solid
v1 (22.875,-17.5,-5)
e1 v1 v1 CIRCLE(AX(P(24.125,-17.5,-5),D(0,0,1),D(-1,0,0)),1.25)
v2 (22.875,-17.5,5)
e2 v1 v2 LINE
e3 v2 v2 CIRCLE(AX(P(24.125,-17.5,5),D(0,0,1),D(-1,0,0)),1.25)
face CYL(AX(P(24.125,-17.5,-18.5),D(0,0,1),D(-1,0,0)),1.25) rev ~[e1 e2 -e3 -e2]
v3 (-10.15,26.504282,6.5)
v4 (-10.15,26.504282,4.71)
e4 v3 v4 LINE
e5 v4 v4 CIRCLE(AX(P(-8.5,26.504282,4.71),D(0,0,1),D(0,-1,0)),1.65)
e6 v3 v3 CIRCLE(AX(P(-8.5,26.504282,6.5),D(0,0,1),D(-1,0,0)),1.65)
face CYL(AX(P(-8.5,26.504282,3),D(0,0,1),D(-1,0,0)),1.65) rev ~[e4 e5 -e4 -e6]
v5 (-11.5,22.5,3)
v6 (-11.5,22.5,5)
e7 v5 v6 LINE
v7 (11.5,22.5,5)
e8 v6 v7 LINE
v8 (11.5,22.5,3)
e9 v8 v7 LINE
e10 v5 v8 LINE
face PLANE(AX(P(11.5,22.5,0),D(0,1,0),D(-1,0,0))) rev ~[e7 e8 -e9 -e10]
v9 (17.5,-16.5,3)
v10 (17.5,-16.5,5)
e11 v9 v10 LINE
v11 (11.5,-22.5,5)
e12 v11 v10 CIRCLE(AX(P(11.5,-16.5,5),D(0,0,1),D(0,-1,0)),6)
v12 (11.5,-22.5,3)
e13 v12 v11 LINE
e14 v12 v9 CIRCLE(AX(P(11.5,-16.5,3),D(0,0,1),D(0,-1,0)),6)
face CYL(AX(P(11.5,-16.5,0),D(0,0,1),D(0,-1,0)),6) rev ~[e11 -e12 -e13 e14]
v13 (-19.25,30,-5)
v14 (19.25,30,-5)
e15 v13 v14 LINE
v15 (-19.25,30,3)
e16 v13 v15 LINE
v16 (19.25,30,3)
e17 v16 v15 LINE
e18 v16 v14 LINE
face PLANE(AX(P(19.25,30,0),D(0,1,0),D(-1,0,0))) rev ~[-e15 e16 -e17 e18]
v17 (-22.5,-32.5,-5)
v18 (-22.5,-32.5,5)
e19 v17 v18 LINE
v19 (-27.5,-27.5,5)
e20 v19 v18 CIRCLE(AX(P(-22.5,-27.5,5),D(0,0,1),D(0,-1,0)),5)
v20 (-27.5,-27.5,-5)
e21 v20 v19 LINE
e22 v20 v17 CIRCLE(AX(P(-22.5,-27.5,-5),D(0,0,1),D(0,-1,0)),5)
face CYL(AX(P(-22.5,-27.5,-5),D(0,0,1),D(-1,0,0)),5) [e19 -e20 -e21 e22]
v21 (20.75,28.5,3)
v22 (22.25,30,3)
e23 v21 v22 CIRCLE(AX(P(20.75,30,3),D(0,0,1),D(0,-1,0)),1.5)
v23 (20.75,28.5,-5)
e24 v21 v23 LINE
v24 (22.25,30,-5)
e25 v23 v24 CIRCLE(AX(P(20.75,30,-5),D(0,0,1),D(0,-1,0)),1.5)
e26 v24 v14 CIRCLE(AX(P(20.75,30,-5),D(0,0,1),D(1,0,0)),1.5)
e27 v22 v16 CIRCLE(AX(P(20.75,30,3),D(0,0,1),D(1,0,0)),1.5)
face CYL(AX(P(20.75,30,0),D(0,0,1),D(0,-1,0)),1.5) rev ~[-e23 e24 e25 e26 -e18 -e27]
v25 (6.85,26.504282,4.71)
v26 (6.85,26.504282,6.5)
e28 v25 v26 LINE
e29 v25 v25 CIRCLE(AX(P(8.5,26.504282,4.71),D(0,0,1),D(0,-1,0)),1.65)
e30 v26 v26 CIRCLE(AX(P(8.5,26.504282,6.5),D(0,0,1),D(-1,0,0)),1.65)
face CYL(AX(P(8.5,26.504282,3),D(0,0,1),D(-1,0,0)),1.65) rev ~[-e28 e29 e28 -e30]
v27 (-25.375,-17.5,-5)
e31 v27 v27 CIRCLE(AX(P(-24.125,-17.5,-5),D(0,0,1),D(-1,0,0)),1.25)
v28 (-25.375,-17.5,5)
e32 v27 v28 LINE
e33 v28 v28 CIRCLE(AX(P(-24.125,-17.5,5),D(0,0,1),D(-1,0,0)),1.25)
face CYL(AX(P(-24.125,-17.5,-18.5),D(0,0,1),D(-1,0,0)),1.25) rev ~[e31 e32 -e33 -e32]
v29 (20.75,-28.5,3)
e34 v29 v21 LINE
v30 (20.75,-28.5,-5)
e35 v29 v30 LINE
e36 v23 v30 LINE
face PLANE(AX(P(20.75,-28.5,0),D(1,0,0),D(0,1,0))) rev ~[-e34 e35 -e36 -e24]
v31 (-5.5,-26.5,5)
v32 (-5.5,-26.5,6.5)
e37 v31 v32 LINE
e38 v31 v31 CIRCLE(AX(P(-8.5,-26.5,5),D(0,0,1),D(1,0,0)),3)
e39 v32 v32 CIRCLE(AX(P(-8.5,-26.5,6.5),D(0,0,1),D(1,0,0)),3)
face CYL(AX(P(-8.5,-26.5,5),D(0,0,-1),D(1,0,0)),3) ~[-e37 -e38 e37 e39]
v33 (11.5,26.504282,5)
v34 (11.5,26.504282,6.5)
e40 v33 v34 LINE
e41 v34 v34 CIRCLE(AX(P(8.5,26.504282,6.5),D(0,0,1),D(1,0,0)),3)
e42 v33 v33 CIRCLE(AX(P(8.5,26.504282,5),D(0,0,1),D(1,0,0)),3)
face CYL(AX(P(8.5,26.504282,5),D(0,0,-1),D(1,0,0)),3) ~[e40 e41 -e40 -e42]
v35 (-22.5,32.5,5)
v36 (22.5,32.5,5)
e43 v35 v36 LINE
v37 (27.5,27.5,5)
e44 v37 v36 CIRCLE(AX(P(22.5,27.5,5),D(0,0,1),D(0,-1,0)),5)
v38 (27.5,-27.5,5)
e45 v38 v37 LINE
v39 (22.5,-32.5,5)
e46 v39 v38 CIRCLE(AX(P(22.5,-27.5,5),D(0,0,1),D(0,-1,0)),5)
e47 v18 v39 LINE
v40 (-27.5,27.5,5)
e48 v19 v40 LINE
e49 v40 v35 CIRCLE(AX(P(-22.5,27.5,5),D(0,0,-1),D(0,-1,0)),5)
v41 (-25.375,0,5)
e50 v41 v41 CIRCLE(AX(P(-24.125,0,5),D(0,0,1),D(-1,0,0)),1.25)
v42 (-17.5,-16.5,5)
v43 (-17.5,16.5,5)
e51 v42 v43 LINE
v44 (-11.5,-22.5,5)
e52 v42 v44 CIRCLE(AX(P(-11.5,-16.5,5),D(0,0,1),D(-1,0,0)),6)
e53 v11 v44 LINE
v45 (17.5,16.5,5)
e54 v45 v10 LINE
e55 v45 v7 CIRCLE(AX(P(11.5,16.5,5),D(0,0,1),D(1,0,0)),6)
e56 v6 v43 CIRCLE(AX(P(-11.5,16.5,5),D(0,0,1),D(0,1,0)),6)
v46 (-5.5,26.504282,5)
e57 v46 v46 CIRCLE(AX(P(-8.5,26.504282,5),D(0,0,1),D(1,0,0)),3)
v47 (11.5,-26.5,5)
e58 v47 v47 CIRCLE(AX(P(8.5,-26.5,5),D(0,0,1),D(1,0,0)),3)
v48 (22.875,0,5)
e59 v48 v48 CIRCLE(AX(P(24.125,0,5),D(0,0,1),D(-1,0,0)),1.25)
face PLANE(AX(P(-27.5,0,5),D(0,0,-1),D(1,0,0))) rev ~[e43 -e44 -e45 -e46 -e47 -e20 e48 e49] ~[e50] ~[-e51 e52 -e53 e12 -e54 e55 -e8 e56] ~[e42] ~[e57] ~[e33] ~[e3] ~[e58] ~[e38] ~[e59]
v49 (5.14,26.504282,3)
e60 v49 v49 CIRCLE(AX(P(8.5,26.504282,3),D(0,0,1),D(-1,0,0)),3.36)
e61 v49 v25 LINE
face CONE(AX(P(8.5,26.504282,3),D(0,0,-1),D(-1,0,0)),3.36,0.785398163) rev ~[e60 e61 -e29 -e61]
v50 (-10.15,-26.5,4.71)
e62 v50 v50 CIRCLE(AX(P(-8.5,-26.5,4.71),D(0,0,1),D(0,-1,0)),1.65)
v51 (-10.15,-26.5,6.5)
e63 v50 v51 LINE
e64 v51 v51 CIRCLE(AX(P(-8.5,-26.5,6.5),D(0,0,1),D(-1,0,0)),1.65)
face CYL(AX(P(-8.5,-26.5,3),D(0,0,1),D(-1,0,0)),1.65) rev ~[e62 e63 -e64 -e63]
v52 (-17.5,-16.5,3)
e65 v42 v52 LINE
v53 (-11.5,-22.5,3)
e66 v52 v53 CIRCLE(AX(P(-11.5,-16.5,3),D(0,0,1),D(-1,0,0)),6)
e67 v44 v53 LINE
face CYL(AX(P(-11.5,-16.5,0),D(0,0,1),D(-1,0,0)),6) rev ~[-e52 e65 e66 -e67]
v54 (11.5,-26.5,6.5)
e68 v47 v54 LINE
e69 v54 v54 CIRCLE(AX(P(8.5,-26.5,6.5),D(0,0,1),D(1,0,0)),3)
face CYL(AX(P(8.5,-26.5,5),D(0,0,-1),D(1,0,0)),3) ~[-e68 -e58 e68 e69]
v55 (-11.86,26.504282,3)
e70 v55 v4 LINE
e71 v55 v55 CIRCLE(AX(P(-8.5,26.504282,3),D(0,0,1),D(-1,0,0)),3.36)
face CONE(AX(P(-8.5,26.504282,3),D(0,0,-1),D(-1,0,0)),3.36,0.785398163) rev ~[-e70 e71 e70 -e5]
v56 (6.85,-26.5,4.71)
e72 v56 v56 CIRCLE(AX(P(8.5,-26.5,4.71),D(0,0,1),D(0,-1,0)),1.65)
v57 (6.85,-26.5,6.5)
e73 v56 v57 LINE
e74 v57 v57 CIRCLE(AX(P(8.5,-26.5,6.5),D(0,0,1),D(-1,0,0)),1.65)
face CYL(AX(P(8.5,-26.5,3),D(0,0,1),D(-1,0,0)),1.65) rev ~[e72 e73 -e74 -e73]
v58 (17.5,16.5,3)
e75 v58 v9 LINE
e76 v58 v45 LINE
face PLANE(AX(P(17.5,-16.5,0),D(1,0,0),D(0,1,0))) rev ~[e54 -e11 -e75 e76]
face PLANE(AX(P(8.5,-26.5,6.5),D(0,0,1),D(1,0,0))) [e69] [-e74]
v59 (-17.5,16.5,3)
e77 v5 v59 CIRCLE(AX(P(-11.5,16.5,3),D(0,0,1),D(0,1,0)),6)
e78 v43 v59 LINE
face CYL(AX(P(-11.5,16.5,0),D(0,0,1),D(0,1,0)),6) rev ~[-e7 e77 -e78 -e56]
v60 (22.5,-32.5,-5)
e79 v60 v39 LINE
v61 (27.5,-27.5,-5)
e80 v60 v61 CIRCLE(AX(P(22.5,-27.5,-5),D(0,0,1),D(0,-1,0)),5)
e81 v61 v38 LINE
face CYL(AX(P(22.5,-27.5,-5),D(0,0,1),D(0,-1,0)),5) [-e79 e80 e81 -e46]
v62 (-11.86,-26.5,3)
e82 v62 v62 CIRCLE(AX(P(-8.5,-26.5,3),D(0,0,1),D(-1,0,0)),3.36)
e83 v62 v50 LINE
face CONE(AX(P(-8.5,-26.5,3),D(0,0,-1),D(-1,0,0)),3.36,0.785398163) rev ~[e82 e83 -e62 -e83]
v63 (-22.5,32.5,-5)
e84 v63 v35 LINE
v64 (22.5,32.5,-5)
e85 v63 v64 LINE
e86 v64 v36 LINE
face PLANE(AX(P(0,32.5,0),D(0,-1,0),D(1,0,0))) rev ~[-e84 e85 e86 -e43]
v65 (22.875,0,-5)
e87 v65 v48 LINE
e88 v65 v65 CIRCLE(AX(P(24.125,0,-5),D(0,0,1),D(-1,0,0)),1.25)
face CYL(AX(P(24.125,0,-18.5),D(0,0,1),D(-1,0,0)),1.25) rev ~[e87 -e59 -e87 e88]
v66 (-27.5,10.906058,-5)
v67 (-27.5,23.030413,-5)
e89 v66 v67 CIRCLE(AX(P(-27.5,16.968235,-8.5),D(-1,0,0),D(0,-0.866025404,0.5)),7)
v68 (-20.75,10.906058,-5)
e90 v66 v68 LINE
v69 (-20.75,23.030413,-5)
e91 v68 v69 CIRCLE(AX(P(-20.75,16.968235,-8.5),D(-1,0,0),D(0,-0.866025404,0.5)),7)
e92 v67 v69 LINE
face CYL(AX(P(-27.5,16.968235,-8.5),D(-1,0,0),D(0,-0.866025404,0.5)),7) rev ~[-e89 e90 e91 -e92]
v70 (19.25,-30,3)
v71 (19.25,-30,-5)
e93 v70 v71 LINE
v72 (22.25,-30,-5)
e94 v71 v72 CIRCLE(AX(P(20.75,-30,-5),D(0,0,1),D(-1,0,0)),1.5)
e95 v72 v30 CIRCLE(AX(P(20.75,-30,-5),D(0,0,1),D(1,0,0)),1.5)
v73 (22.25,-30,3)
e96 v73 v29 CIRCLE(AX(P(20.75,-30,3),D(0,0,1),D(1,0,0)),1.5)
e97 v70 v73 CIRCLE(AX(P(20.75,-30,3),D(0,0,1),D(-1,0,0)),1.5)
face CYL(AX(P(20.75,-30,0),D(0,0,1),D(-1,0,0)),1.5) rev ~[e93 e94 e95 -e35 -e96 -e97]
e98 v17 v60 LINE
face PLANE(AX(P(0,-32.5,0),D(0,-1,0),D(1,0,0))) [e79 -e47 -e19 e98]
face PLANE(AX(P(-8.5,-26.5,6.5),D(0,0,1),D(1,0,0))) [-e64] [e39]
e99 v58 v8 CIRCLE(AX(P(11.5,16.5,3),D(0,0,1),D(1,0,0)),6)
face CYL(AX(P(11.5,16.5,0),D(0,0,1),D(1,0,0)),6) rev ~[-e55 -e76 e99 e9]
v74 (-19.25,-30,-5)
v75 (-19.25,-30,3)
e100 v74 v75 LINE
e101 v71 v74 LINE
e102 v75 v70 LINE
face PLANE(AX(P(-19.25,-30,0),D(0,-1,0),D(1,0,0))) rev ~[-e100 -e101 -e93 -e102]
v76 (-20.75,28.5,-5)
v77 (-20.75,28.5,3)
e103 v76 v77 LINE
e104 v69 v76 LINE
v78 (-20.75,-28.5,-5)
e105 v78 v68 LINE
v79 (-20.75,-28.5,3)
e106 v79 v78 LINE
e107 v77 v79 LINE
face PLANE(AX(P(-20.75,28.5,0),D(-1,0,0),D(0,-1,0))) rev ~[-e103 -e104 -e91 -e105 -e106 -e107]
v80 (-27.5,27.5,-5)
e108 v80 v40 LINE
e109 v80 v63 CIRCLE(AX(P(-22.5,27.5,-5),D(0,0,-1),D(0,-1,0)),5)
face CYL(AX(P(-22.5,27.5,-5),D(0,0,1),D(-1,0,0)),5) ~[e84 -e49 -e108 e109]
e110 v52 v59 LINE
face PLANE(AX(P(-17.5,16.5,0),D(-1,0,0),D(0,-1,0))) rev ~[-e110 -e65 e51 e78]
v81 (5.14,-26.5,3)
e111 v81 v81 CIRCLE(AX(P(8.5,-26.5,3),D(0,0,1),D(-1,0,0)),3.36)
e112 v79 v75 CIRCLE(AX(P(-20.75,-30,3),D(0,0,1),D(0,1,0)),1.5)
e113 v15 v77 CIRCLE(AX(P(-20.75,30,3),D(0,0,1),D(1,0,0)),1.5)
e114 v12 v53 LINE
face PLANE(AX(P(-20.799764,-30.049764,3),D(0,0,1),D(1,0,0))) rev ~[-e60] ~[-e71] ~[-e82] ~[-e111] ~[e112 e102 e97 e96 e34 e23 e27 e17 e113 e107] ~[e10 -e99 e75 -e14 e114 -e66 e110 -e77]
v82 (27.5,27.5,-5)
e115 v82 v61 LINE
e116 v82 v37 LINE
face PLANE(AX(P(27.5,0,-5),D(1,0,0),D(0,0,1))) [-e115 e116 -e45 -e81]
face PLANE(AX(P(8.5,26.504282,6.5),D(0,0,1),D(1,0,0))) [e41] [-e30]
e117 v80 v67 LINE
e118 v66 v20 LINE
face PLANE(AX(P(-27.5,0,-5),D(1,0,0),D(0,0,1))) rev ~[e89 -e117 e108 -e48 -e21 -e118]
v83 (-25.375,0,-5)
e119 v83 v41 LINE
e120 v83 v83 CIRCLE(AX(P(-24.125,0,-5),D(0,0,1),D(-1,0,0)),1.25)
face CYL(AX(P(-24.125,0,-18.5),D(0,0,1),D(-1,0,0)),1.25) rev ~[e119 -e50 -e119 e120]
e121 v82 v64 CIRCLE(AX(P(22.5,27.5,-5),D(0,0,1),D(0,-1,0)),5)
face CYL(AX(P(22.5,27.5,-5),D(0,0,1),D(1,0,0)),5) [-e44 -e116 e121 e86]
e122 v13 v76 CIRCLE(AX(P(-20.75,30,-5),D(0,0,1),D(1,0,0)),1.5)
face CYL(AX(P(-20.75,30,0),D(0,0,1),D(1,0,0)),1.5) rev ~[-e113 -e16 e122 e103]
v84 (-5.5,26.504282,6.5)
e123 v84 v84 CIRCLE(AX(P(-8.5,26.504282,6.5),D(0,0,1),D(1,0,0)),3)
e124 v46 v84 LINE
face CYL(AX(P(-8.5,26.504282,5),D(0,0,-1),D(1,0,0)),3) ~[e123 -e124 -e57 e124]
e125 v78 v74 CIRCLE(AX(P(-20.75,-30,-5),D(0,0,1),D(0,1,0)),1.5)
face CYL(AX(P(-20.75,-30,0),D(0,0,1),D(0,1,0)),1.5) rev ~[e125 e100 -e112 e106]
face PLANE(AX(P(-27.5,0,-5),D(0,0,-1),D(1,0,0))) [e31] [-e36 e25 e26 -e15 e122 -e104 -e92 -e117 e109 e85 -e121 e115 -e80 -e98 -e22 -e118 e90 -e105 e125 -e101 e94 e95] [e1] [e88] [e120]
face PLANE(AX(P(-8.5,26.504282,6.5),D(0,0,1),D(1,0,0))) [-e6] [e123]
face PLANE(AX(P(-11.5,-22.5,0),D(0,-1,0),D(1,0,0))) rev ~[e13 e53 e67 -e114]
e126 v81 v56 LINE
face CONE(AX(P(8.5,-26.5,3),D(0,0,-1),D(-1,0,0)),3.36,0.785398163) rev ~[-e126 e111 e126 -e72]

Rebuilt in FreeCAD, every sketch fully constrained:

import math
import FreeCAD as App
import Part
import Sketcher
Q = App.Units.Quantity


def edges_at(feature, points):
    """Names of the edges that pass closest to the given points."""
    edges = feature.Shape.Edges
    near = lambda p: min(range(len(edges)), key=lambda i: edges[i].distToShape(Part.Vertex(*p))[0])
    return sorted({f"Edge{near(p) + 1}" for p in points})


def add_polygon(sketch, points):
    """Adds a closed chain of lines whose ends are joined by coincident constraints."""
    first, n = sketch.GeometryCount, len(points)
    for a, b in zip(points, points[1:] + points[:1]):
        sketch.addGeometry(Part.LineSegment(App.Vector(*a, 0), App.Vector(*b, 0)), False)
    for i in range(n):
        sketch.addConstraint(Sketcher.Constraint("Coincident", first + i, 2, first + (i + 1) % n, 1))

doc = App.newDocument("Part")
body = doc.addObject("PartDesign::Body", "Body")

# Sketch on XZ plane
sketch1 = doc.addObject("Sketcher::SketchObject", "Sketch")
body.addObject(sketch1)
sketch1.AttachmentSupport = (doc.XZ_Plane, [""])
sketch1.MapMode = "FlatFace"
add_polygon(sketch1, [(-28, 5), (-28, -5), (28, -5), (28, 5)])  # lines 0-3
sketch1.addConstraint(Sketcher.Constraint("Vertical", 0))
sketch1.addConstraint(Sketcher.Constraint("Horizontal", 1))
sketch1.addConstraint(Sketcher.Constraint("Vertical", 2))
sketch1.addConstraint(Sketcher.Constraint("Horizontal", 3))
sketch1.addConstraint(Sketcher.Constraint("Symmetric", 0, 2, 2, 2, -1, 1))
sketch1.addConstraint(Sketcher.Constraint("DistanceX", 1, 1, 1, 2, Q("55 mm")))
sketch1.addConstraint(Sketcher.Constraint("DistanceY", 0, 2, 0, 1, Q("10 mm")))
pad1 = doc.addObject("PartDesign::Pad", "Pad")
body.addObject(pad1)
pad1.Profile = sketch1
pad1.Length = 65
pad1.Midplane = True
doc.recompute()

fillet = doc.addObject("PartDesign::Fillet", "Fillet")
body.addObject(fillet)
fillet.Base = (pad1, edges_at(pad1, [
    (27.5, -32.5, 0),
    (-27.5, -32.5, 0),
    (-27.5, 32.5, 0),
    (27.5, 32.5, 0),
]))
fillet.Radius = 5

# Sketch on XY plane
sketch2 = doc.addObject("Sketcher::SketchObject", "Sketch001")
body.addObject(sketch2)
sketch2.AttachmentSupport = (doc.XY_Plane, [""])
sketch2.MapMode = "FlatFace"
sketch2.addGeometry(Part.LineSegment(App.Vector(-12, -22, 0), App.Vector(12, -22, 0)), False)
sketch2.addGeometry(Part.ArcOfCircle(Part.Circle(App.Vector(12, -16, 0), App.Vector(0, 0, 1), 6), math.radians(-90), math.radians(0)), False)
sketch2.addGeometry(Part.LineSegment(App.Vector(18, -16, 0), App.Vector(18, 16, 0)), False)
sketch2.addGeometry(Part.ArcOfCircle(Part.Circle(App.Vector(12, 16, 0), App.Vector(0, 0, 1), 6), math.radians(0), math.radians(90)), False)
sketch2.addGeometry(Part.LineSegment(App.Vector(12, 22, 0), App.Vector(-12, 22, 0)), False)
sketch2.addGeometry(Part.ArcOfCircle(Part.Circle(App.Vector(-12, 16, 0), App.Vector(0, 0, 1), 6), math.radians(90), math.radians(180)), False)
sketch2.addGeometry(Part.LineSegment(App.Vector(-18, 16, 0), App.Vector(-18, -16, 0)), False)
sketch2.addGeometry(Part.ArcOfCircle(Part.Circle(App.Vector(-12, -16, 0), App.Vector(0, 0, 1), 6), math.radians(180), math.radians(270)), False)
sketch2.addConstraint(Sketcher.Constraint("Tangent", 0, 2, 1, 1))
sketch2.addConstraint(Sketcher.Constraint("Tangent", 1, 2, 2, 1))
sketch2.addConstraint(Sketcher.Constraint("Tangent", 2, 2, 3, 1))
sketch2.addConstraint(Sketcher.Constraint("Tangent", 3, 2, 4, 1))
sketch2.addConstraint(Sketcher.Constraint("Tangent", 4, 2, 5, 1))
sketch2.addConstraint(Sketcher.Constraint("Tangent", 5, 2, 6, 1))
sketch2.addConstraint(Sketcher.Constraint("Tangent", 6, 2, 7, 1))
sketch2.addConstraint(Sketcher.Constraint("Tangent", 7, 2, 0, 1))
sketch2.addConstraint(Sketcher.Constraint("Horizontal", 0))
sketch2.addConstraint(Sketcher.Constraint("Vertical", 2))
sketch2.addConstraint(Sketcher.Constraint("Horizontal", 4))
sketch2.addConstraint(Sketcher.Constraint("Vertical", 6))
sketch2.addConstraint(Sketcher.Constraint("Equal", 1, 3))
sketch2.addConstraint(Sketcher.Constraint("Equal", 3, 5))
sketch2.addConstraint(Sketcher.Constraint("Equal", 5, 7))
sketch2.addConstraint(Sketcher.Constraint("Symmetric", 1, 3, 5, 3, -1, 1))
sketch2.addConstraint(Sketcher.Constraint("Radius", 1, Q("6 mm")))
sketch2.addConstraint(Sketcher.Constraint("DistanceX", 0, 1, 0, 2, Q("23 mm")))
sketch2.addConstraint(Sketcher.Constraint("DistanceY", 2, 1, 2, 2, Q("33 mm")))
pocket1 = doc.addObject("PartDesign::Pocket", "Pocket")
body.addObject(pocket1)
pocket1.Profile = sketch2
pocket1.Length = 25
pocket1.Midplane = True

# Sketch on XY plane
sketch3 = doc.addObject("Sketcher::SketchObject", "Sketch002")
body.addObject(sketch3)
sketch3.AttachmentSupport = (doc.XY_Plane, [""])
sketch3.MapMode = "FlatFace"
sketch3.addGeometry(Part.ArcOfCircle(Part.Circle(App.Vector(-20.8, -30, 0), App.Vector(0, 0, 1), 1.5), math.radians(90), math.radians(360)), False)
sketch3.addGeometry(Part.LineSegment(App.Vector(-19.2, -30, 0), App.Vector(19.2, -30, 0)), False)
sketch3.addGeometry(Part.ArcOfCircle(Part.Circle(App.Vector(20.8, -30, 0), App.Vector(0, 0, 1), 1.5), math.radians(180), math.radians(360)), False)
sketch3.addGeometry(Part.ArcOfCircle(Part.Circle(App.Vector(20.8, -30, 0), App.Vector(0, 0, 1), 1.5), math.radians(0), math.radians(90)), False)
sketch3.addGeometry(Part.LineSegment(App.Vector(20.8, -28.5, 0), App.Vector(20.8, 28.5, 0)), False)
sketch3.addGeometry(Part.ArcOfCircle(Part.Circle(App.Vector(20.8, 30, 0), App.Vector(0, 0, 1), 1.5), math.radians(-90), math.radians(0)), False)
sketch3.addGeometry(Part.ArcOfCircle(Part.Circle(App.Vector(20.8, 30, 0), App.Vector(0, 0, 1), 1.5), math.radians(0), math.radians(180)), False)
sketch3.addGeometry(Part.LineSegment(App.Vector(19.2, 30, 0), App.Vector(-19.2, 30, 0)), False)
sketch3.addGeometry(Part.ArcOfCircle(Part.Circle(App.Vector(-20.8, 30, 0), App.Vector(0, 0, 1), 1.5), math.radians(0), math.radians(270)), False)
sketch3.addGeometry(Part.LineSegment(App.Vector(-20.8, 28.5, 0), App.Vector(-20.8, -28.5, 0)), False)
sketch3.addConstraint(Sketcher.Constraint("Coincident", 0, 2, 1, 1))
sketch3.addConstraint(Sketcher.Constraint("Coincident", 1, 2, 2, 1))
sketch3.addConstraint(Sketcher.Constraint("Tangent", 2, 2, 3, 1))
sketch3.addConstraint(Sketcher.Constraint("Coincident", 3, 2, 4, 1))
sketch3.addConstraint(Sketcher.Constraint("Coincident", 4, 2, 5, 1))
sketch3.addConstraint(Sketcher.Constraint("Tangent", 5, 2, 6, 1))
sketch3.addConstraint(Sketcher.Constraint("Coincident", 6, 2, 7, 1))
sketch3.addConstraint(Sketcher.Constraint("Coincident", 7, 2, 8, 1))
sketch3.addConstraint(Sketcher.Constraint("Coincident", 8, 2, 9, 1))
sketch3.addConstraint(Sketcher.Constraint("Coincident", 9, 2, 0, 1))
sketch3.addConstraint(Sketcher.Constraint("Horizontal", 1))
sketch3.addConstraint(Sketcher.Constraint("Vertical", 4))
sketch3.addConstraint(Sketcher.Constraint("Horizontal", 7))
sketch3.addConstraint(Sketcher.Constraint("Vertical", 9))
sketch3.addConstraint(Sketcher.Constraint("Equal", 0, 2))
sketch3.addConstraint(Sketcher.Constraint("Equal", 2, 3))
sketch3.addConstraint(Sketcher.Constraint("Equal", 3, 5))
sketch3.addConstraint(Sketcher.Constraint("Equal", 5, 6))
sketch3.addConstraint(Sketcher.Constraint("Equal", 6, 8))
sketch3.addConstraint(Sketcher.Constraint("Symmetric", 0, 3, 5, 3, -1, 1))
sketch3.addConstraint(Sketcher.Constraint("Symmetric", 2, 3, 8, 3, -1, 1))
sketch3.addConstraint(Sketcher.Constraint("Symmetric", 0, 3, 2, 3, -2))
sketch3.addConstraint(Sketcher.Constraint("Horizontal", 3, 3, 0, 2))
sketch3.addConstraint(Sketcher.Constraint("Horizontal", 1, 2, 2, 2))
sketch3.addConstraint(Sketcher.Constraint("Horizontal", 8, 3, 5, 2))
sketch3.addConstraint(Sketcher.Constraint("Horizontal", 5, 2, 6, 2))
sketch3.addConstraint(Sketcher.Constraint("Vertical", 6, 3, 3, 2))
sketch3.addConstraint(Sketcher.Constraint("Vertical", 0, 3, 8, 2))
sketch3.addConstraint(Sketcher.Constraint("Radius", 0, Q("1.5 mm")))
sketch3.addConstraint(Sketcher.Constraint("DistanceY", 4, 1, 4, 2, Q("57 mm")))
sketch3.addConstraint(Sketcher.Constraint("DistanceX", 1, 1, 1, 2, Q("38.5 mm")))
pocket2 = doc.addObject("PartDesign::Pocket", "Pocket001")
body.addObject(pocket2)
pocket2.Profile = sketch3
pocket2.Length = 30

# Sketch on XY plane
sketch4 = doc.addObject("Sketcher::SketchObject", "Sketch003")
body.addObject(sketch4)
sketch4.AttachmentSupport = (doc.XY_Plane, [""])
sketch4.MapMode = "FlatFace"
sketch4.addGeometry(Part.ArcOfCircle(Part.Circle(App.Vector(-20.8, -30, 0), App.Vector(0, 0, 1), 1.5), math.radians(90), math.radians(360)), False)
sketch4.addGeometry(Part.LineSegment(App.Vector(-19.2, -30, 0), App.Vector(19.2, -30, 0)), False)
sketch4.addGeometry(Part.ArcOfCircle(Part.Circle(App.Vector(20.8, -30, 0), App.Vector(0, 0, 1), 1.5), math.radians(180), math.radians(360)), False)
sketch4.addGeometry(Part.ArcOfCircle(Part.Circle(App.Vector(20.8, -30, 0), App.Vector(0, 0, 1), 1.5), math.radians(0), math.radians(90)), False)
sketch4.addGeometry(Part.LineSegment(App.Vector(20.8, -28.5, 0), App.Vector(20.8, 28.5, 0)), False)
sketch4.addGeometry(Part.ArcOfCircle(Part.Circle(App.Vector(20.8, 30, 0), App.Vector(0, 0, 1), 1.5), math.radians(-90), math.radians(0)), False)
sketch4.addGeometry(Part.ArcOfCircle(Part.Circle(App.Vector(20.8, 30, 0), App.Vector(0, 0, 1), 1.5), math.radians(0), math.radians(180)), False)
sketch4.addGeometry(Part.LineSegment(App.Vector(19.2, 30, 0), App.Vector(-19.2, 30, 0)), False)
sketch4.addGeometry(Part.ArcOfCircle(Part.Circle(App.Vector(-20.8, 30, 0), App.Vector(0, 0, 1), 1.5), math.radians(0), math.radians(270)), False)
sketch4.addGeometry(Part.LineSegment(App.Vector(-20.8, 28.5, 0), App.Vector(-20.8, -28.5, 0)), False)
sketch4.addConstraint(Sketcher.Constraint("Coincident", 0, 2, 1, 1))
sketch4.addConstraint(Sketcher.Constraint("Coincident", 1, 2, 2, 1))
sketch4.addConstraint(Sketcher.Constraint("Tangent", 2, 2, 3, 1))
sketch4.addConstraint(Sketcher.Constraint("Coincident", 3, 2, 4, 1))
sketch4.addConstraint(Sketcher.Constraint("Coincident", 4, 2, 5, 1))
sketch4.addConstraint(Sketcher.Constraint("Tangent", 5, 2, 6, 1))
sketch4.addConstraint(Sketcher.Constraint("Coincident", 6, 2, 7, 1))
sketch4.addConstraint(Sketcher.Constraint("Coincident", 7, 2, 8, 1))
sketch4.addConstraint(Sketcher.Constraint("Coincident", 8, 2, 9, 1))
sketch4.addConstraint(Sketcher.Constraint("Coincident", 9, 2, 0, 1))
sketch4.addConstraint(Sketcher.Constraint("Horizontal", 1))
sketch4.addConstraint(Sketcher.Constraint("Vertical", 4))
sketch4.addConstraint(Sketcher.Constraint("Horizontal", 7))
sketch4.addConstraint(Sketcher.Constraint("Vertical", 9))
sketch4.addConstraint(Sketcher.Constraint("Equal", 0, 2))
sketch4.addConstraint(Sketcher.Constraint("Equal", 2, 3))
sketch4.addConstraint(Sketcher.Constraint("Equal", 3, 5))
sketch4.addConstraint(Sketcher.Constraint("Equal", 5, 6))
sketch4.addConstraint(Sketcher.Constraint("Equal", 6, 8))
sketch4.addConstraint(Sketcher.Constraint("Symmetric", 0, 3, 5, 3, -1, 1))
sketch4.addConstraint(Sketcher.Constraint("Symmetric", 2, 3, 8, 3, -1, 1))
sketch4.addConstraint(Sketcher.Constraint("Symmetric", 0, 3, 2, 3, -2))
sketch4.addConstraint(Sketcher.Constraint("Horizontal", 3, 3, 0, 2))
sketch4.addConstraint(Sketcher.Constraint("Horizontal", 1, 2, 2, 2))
sketch4.addConstraint(Sketcher.Constraint("Horizontal", 8, 3, 5, 2))
sketch4.addConstraint(Sketcher.Constraint("Horizontal", 5, 2, 6, 2))
sketch4.addConstraint(Sketcher.Constraint("Vertical", 6, 3, 3, 2))
sketch4.addConstraint(Sketcher.Constraint("Vertical", 0, 3, 8, 2))
sketch4.addConstraint(Sketcher.Constraint("Radius", 0, Q("1.5 mm")))
sketch4.addConstraint(Sketcher.Constraint("DistanceY", 4, 1, 4, 2, Q("57 mm")))
sketch4.addConstraint(Sketcher.Constraint("DistanceX", 1, 1, 1, 2, Q("38.5 mm")))
pocket3 = doc.addObject("PartDesign::Pocket", "Pocket002")
body.addObject(pocket3)
pocket3.Profile = sketch4
pocket3.Length = 3
pocket3.Reversed = True

# Sketch on XY plane
sketch5 = doc.addObject("Sketcher::SketchObject", "Sketch004")
body.addObject(sketch5)
sketch5.AttachmentSupport = (doc.XY_Plane, [""])
sketch5.MapMode = "FlatFace"
sketch5.AttachmentOffset = App.Placement(App.Vector(0, 0, 3), App.Rotation())
sketch5.addGeometry(Part.Circle(App.Vector(-8.5, 26.5, 0), App.Vector(0, 0, 1), 1.6), False)
sketch5.addGeometry(Part.Circle(App.Vector(8.5, 26.5, 0), App.Vector(0, 0, 1), 1.6), False)
sketch5.addConstraint(Sketcher.Constraint("Equal", 0, 1))
sketch5.addConstraint(Sketcher.Constraint("Symmetric", 0, 3, 1, 3, -2))
sketch5.addConstraint(Sketcher.Constraint("Diameter", 0, Q("3.3 mm")))
sketch5.addConstraint(Sketcher.Constraint("DistanceX", 0, 3, 1, 3, Q("17 mm")))
sketch5.addConstraint(Sketcher.Constraint("DistanceY", -1, 1, 0, 3, Q("26.504282 mm")))
doc.recompute()
hole = doc.addObject("PartDesign::Hole", "Hole")
body.addObject(hole)
hole.Profile = sketch5
hole.ThreadType = "None"
hole.Diameter = 3.3
hole.DepthType = "ThroughAll"
hole.HoleCutType = "Countersink"
hole.HoleCutDiameter = 6.72
hole.HoleCutCountersinkAngle = 90
hole.Reversed = True

# Sketch on XY plane
sketch6 = doc.addObject("Sketcher::SketchObject", "Sketch005")
body.addObject(sketch6)
sketch6.AttachmentSupport = (doc.XY_Plane, [""])
sketch6.MapMode = "FlatFace"
sketch6.AttachmentOffset = App.Placement(App.Vector(0, 0, 5), App.Rotation())
sketch6.addGeometry(Part.Circle(App.Vector(8.5, 26.5, 0), App.Vector(0, 0, 1), 3), False)
sketch6.addGeometry(Part.Circle(App.Vector(-8.5, 26.5, 0), App.Vector(0, 0, 1), 3), False)
sketch6.addGeometry(Part.Circle(App.Vector(-8.5, -26.5, 0), App.Vector(0, 0, 1), 3), False)
sketch6.addGeometry(Part.Circle(App.Vector(8.5, -26.5, 0), App.Vector(0, 0, 1), 3), False)
sketch6.addConstraint(Sketcher.Constraint("Equal", 0, 1))
sketch6.addConstraint(Sketcher.Constraint("Equal", 1, 2))
sketch6.addConstraint(Sketcher.Constraint("Equal", 2, 3))
sketch6.addConstraint(Sketcher.Constraint("Symmetric", 0, 3, 1, 3, -2))
sketch6.addConstraint(Sketcher.Constraint("Symmetric", 2, 3, 3, 3, -2))
sketch6.addConstraint(Sketcher.Constraint("Vertical", 1, 3, 2, 3))
sketch6.addConstraint(Sketcher.Constraint("Diameter", 0, Q("6 mm")))
sketch6.addConstraint(Sketcher.Constraint("DistanceX", 1, 3, 0, 3, Q("17 mm")))
sketch6.addConstraint(Sketcher.Constraint("DistanceY", 2, 3, -1, 1, Q("26.5 mm")))
sketch6.addConstraint(Sketcher.Constraint("DistanceY", -1, 1, 0, 3, Q("26.504282 mm")))
pad2 = doc.addObject("PartDesign::Pad", "Pad001")
body.addObject(pad2)
pad2.Profile = sketch6
pad2.Length = 1.5

# Sketch on XY plane
sketch7 = doc.addObject("Sketcher::SketchObject", "Sketch006")
body.addObject(sketch7)
sketch7.AttachmentSupport = (doc.XY_Plane, [""])
sketch7.MapMode = "FlatFace"
sketch7.AttachmentOffset = App.Placement(App.Vector(0, 0, 3), App.Rotation())
sketch7.addGeometry(Part.Circle(App.Vector(-8.5, 26.5, 0), App.Vector(0, 0, 1), 1.6), False)
sketch7.addGeometry(Part.Circle(App.Vector(8.5, 26.5, 0), App.Vector(0, 0, 1), 1.6), False)
sketch7.addGeometry(Part.Circle(App.Vector(8.5, -26.5, 0), App.Vector(0, 0, 1), 1.6), False)
sketch7.addGeometry(Part.Circle(App.Vector(-8.5, -26.5, 0), App.Vector(0, 0, 1), 1.6), False)
sketch7.addConstraint(Sketcher.Constraint("Equal", 0, 1))
sketch7.addConstraint(Sketcher.Constraint("Equal", 1, 2))
sketch7.addConstraint(Sketcher.Constraint("Equal", 2, 3))
sketch7.addConstraint(Sketcher.Constraint("Symmetric", 0, 3, 1, 3, -2))
sketch7.addConstraint(Sketcher.Constraint("Symmetric", 2, 3, 3, 3, -2))
sketch7.addConstraint(Sketcher.Constraint("Vertical", 1, 3, 2, 3))
sketch7.addConstraint(Sketcher.Constraint("Diameter", 0, Q("3.3 mm")))
sketch7.addConstraint(Sketcher.Constraint("DistanceX", 0, 3, 1, 3, Q("17 mm")))
sketch7.addConstraint(Sketcher.Constraint("DistanceY", 2, 3, -1, 1, Q("26.5 mm")))
sketch7.addConstraint(Sketcher.Constraint("DistanceY", -1, 1, 0, 3, Q("26.504282 mm")))
doc.recompute()
hole2 = doc.addObject("PartDesign::Hole", "Hole001")
body.addObject(hole2)
hole2.Profile = sketch7
hole2.ThreadType = "None"
hole2.Diameter = 3.3
hole2.DepthType = "Dimension"
hole2.Depth = 13.5
hole2.DrillPoint = "Angled"
hole2.DrillPointAngle = 118
hole2.HoleCutType = "Countersink"
hole2.HoleCutDiameter = 6.72
hole2.HoleCutCountersinkAngle = 90
hole2.Reversed = True

# Sketch on XY plane
sketch8 = doc.addObject("Sketcher::SketchObject", "Sketch007")
body.addObject(sketch8)
sketch8.AttachmentSupport = (doc.XY_Plane, [""])
sketch8.MapMode = "FlatFace"
sketch8.AttachmentOffset = App.Placement(App.Vector(0, 0, -5), App.Rotation())
sketch8.addGeometry(Part.Circle(App.Vector(-24.1, 0, 0), App.Vector(0, 0, 1), 1.2), False)
sketch8.addGeometry(Part.Circle(App.Vector(24.1, 0, 0), App.Vector(0, 0, 1), 1.2), False)
sketch8.addGeometry(Part.Circle(App.Vector(-24.1, -17.5, 0), App.Vector(0, 0, 1), 1.2), False)
sketch8.addGeometry(Part.Circle(App.Vector(24.1, -17.5, 0), App.Vector(0, 0, 1), 1.2), False)
sketch8.addConstraint(Sketcher.Constraint("Equal", 0, 1))
sketch8.addConstraint(Sketcher.Constraint("Equal", 1, 2))
sketch8.addConstraint(Sketcher.Constraint("Equal", 2, 3))
sketch8.addConstraint(Sketcher.Constraint("Symmetric", 0, 3, 1, 3, -1, 1))
sketch8.addConstraint(Sketcher.Constraint("Symmetric", 2, 3, 3, 3, -2))
sketch8.addConstraint(Sketcher.Constraint("PointOnObject", 0, 3, -1))
sketch8.addConstraint(Sketcher.Constraint("Vertical", 0, 3, 2, 3))
sketch8.addConstraint(Sketcher.Constraint("Diameter", 0, Q("2.5 mm")))
sketch8.addConstraint(Sketcher.Constraint("DistanceY", 2, 3, -1, 1, Q("17.5 mm")))
sketch8.addConstraint(Sketcher.Constraint("DistanceX", 0, 3, 1, 3, Q("48.25 mm")))
doc.recompute()
hole3 = doc.addObject("PartDesign::Hole", "Hole002")
body.addObject(hole3)
hole3.Profile = sketch8
hole3.ThreadType = "None"
hole3.Diameter = 2.5
hole3.DepthType = "Dimension"
hole3.Depth = 13.5
hole3.DrillPoint = "Angled"
hole3.DrillPointAngle = 118
hole3.Reversed = True

# Sketch on YZ plane
sketch9 = doc.addObject("Sketcher::SketchObject", "Sketch008")
body.addObject(sketch9)
sketch9.AttachmentSupport = (doc.YZ_Plane, [""])
sketch9.MapMode = "FlatFace"
sketch9.AttachmentOffset = App.Placement(App.Vector(0, 0, -27.5), App.Rotation())
sketch9.addGeometry(Part.LineSegment(App.Vector(23, -5, 0), App.Vector(11, -5, 0)), False)
sketch9.addGeometry(Part.ArcOfCircle(Part.Circle(App.Vector(17, -8, 0), App.Vector(0, 0, 1), 7), math.radians(30), math.radians(150)), False)
sketch9.addConstraint(Sketcher.Constraint("Coincident", 0, 1, 1, 1))
sketch9.addConstraint(Sketcher.Constraint("Coincident", 1, 2, 0, 2))
sketch9.addConstraint(Sketcher.Constraint("Horizontal", 0))
sketch9.addConstraint(Sketcher.Constraint("Radius", 1, Q("7 mm")))
sketch9.addConstraint(Sketcher.Constraint("DistanceY", 0, 1, -1, 1, Q("5 mm")))
sketch9.addConstraint(Sketcher.Constraint("DistanceY", 1, 3, -1, 1, Q("8.5 mm")))
sketch9.addConstraint(Sketcher.Constraint("DistanceX", -1, 1, 1, 3, Q("16.968235 mm")))
pocket4 = doc.addObject("PartDesign::Pocket", "Pocket003")
body.addObject(pocket4)
pocket4.Profile = sketch9
pocket4.Length = 12
pocket4.Reversed = True

doc.recompute()
